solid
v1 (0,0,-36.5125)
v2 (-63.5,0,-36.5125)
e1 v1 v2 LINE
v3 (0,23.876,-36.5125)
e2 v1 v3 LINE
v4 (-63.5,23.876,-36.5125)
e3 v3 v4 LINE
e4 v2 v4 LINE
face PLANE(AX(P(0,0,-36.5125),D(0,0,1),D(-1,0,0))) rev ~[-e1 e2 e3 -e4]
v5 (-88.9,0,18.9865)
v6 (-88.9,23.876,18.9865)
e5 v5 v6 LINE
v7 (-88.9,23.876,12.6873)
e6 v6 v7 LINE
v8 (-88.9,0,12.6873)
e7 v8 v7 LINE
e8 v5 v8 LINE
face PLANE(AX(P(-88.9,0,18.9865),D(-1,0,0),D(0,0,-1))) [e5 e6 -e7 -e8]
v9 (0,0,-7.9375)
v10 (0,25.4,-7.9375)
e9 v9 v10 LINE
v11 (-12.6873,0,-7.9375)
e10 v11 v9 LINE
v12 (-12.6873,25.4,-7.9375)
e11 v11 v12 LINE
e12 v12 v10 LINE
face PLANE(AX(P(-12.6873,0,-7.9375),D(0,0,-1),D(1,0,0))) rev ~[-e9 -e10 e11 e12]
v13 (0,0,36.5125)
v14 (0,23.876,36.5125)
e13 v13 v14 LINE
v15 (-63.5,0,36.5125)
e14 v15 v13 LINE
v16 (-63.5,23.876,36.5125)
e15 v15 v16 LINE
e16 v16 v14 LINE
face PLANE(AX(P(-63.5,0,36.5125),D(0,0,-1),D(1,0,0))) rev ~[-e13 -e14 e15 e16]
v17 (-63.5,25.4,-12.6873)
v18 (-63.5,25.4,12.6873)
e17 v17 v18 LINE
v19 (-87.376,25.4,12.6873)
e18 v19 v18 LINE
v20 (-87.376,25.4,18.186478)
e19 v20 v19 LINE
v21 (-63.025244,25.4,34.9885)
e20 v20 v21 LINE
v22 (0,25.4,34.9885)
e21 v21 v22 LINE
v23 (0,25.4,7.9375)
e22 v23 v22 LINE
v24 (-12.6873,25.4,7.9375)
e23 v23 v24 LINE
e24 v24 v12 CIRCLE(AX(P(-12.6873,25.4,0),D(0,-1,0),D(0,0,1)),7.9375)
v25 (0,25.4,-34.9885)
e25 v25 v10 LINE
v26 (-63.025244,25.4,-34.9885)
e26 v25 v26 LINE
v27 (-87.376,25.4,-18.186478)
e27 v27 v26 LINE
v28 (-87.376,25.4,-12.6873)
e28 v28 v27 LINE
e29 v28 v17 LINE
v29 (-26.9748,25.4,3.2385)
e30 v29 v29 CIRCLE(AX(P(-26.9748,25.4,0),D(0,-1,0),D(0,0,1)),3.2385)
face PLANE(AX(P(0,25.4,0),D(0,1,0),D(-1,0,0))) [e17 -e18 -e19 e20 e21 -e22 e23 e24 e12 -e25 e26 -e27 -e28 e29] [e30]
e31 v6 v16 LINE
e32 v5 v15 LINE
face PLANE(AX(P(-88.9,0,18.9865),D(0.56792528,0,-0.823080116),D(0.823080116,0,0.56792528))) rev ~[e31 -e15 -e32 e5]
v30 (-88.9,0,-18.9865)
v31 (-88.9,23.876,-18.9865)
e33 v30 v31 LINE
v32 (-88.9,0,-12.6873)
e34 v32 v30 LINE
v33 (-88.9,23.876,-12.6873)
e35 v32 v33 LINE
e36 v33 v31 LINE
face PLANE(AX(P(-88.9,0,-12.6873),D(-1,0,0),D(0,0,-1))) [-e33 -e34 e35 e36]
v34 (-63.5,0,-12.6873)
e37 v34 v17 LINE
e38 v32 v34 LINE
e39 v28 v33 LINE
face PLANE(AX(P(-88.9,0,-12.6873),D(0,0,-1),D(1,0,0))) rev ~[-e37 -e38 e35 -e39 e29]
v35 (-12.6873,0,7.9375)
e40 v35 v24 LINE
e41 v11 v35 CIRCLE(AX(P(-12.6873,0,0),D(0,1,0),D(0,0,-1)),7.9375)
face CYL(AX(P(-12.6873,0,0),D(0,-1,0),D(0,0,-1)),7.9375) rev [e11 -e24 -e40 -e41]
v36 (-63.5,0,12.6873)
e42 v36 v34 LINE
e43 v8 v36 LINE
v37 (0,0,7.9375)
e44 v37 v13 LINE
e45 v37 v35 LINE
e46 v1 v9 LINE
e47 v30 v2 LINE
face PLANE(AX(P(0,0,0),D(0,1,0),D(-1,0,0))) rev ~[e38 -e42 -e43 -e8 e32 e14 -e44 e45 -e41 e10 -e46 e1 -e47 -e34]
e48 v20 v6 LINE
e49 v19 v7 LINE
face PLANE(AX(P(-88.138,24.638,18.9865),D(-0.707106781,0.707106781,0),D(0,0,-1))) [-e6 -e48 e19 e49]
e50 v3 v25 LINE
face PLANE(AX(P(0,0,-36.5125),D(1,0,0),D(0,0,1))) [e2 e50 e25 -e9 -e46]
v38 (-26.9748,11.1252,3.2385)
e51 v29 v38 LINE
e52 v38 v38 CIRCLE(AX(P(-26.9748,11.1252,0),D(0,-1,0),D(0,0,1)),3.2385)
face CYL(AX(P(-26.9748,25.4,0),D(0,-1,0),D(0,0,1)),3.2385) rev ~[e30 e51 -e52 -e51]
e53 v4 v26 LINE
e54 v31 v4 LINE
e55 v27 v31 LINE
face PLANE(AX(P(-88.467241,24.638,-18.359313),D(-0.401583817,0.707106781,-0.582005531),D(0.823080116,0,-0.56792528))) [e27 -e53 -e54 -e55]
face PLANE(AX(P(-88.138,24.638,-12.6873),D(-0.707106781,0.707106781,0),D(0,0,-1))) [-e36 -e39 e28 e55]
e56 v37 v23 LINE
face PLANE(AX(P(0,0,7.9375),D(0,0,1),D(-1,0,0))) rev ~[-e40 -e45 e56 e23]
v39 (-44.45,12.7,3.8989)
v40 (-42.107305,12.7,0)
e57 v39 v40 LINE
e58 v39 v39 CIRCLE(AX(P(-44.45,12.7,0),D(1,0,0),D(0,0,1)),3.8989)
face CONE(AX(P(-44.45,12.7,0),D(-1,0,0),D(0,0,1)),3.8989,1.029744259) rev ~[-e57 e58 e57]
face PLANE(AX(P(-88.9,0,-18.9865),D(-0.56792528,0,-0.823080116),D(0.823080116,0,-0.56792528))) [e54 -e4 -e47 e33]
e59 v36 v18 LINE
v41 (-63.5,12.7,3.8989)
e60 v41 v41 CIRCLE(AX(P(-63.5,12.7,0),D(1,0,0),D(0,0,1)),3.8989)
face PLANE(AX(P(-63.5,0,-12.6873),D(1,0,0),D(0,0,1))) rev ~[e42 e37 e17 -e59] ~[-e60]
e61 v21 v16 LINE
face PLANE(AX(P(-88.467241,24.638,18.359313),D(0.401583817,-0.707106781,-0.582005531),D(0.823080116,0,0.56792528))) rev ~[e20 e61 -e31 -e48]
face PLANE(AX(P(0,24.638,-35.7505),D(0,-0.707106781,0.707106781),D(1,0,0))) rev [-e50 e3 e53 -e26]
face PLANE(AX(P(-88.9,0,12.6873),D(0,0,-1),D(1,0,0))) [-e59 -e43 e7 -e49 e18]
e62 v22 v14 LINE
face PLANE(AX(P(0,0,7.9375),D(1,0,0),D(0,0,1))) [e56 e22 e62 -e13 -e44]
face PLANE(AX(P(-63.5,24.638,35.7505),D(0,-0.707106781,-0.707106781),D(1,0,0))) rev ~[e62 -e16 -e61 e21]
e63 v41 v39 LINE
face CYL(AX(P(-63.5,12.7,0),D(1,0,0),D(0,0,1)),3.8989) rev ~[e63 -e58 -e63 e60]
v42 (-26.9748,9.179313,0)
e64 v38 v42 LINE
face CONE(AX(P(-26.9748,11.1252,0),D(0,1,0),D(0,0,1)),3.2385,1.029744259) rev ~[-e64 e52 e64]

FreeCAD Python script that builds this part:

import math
import FreeCAD as App
import Part
import Sketcher

V = App.Vector
Q = App.Units.Quantity


def edges_at(feature, points):
    """Names of the edges that pass closest to the given points."""
    edges = feature.Shape.Edges
    near = lambda p: min(range(len(edges)), key=lambda i: edges[i].distToShape(Part.Vertex(*p))[0])
    return sorted({f"Edge{near(p) + 1}" for p in points})

doc = App.newDocument("Part")
body = doc.addObject("PartDesign::Body", "Body")

# Sketch on XZ plane
sketch1 = body.newObject("Sketcher::SketchObject", "Sketch")
sketch1.AttachmentSupport = (doc.getObject("XZ_Plane"), [""])
sketch1.MapMode = "FlatFace"
sketch1.addGeometry([
    Part.LineSegment(V(0, -7.9375, 0), V(0, -36.5125, 0)),  # 0
    Part.LineSegment(V(0, -36.5125, 0), V(-63.5, -36.5125, 0)),  # 1
    Part.LineSegment(V(-63.5, -36.5125, 0), V(-88.9, -18.9865, 0)),  # 2
    Part.LineSegment(V(-88.9, -18.9865, 0), V(-88.9, -12.6873, 0)),  # 3
    Part.LineSegment(V(-88.9, -12.6873, 0), V(-63.5, -12.6873, 0)),  # 4
    Part.LineSegment(V(-63.5, -12.6873, 0), V(-63.5, 12.6873, 0)),  # 5
    Part.LineSegment(V(-63.5, 12.6873, 0), V(-88.9, 12.6873, 0)),  # 6
    Part.LineSegment(V(-88.9, 12.6873, 0), V(-88.9, 18.9865, 0)),  # 7
    Part.LineSegment(V(-88.9, 18.9865, 0), V(-63.5, 36.5125, 0)),  # 8
    Part.LineSegment(V(-63.5, 36.5125, 0), V(0, 36.5125, 0)),  # 9
    Part.LineSegment(V(0, 36.5125, 0), V(0, 7.9375, 0)),  # 10
    Part.LineSegment(V(0, 7.9375, 0), V(-12.6873, 7.9375, 0)),  # 11
    Part.ArcOfCircle(Part.Circle(V(-12.6873, 0, 0), V(0, 0, 1), 7.9375), math.radians(90), math.radians(270)),  # 12
    Part.LineSegment(V(-12.6873, -7.9375, 0), V(0, -7.9375, 0)),  # 13
], False)
sketch1.addConstraint([
    Sketcher.Constraint("Coincident", 0, 2, 1, 1),
    Sketcher.Constraint("Coincident", 1, 2, 2, 1),
    Sketcher.Constraint("Coincident", 2, 2, 3, 1),
    Sketcher.Constraint("Coincident", 3, 2, 4, 1),
    Sketcher.Constraint("Coincident", 4, 2, 5, 1),
    Sketcher.Constraint("Coincident", 5, 2, 6, 1),
    Sketcher.Constraint("Coincident", 6, 2, 7, 1),
    Sketcher.Constraint("Coincident", 7, 2, 8, 1),
    Sketcher.Constraint("Coincident", 8, 2, 9, 1),
    Sketcher.Constraint("Coincident", 9, 2, 10, 1),
    Sketcher.Constraint("Coincident", 10, 2, 11, 1),
    Sketcher.Constraint("Tangent", 11, 2, 12, 1),
    Sketcher.Constraint("Tangent", 12, 2, 13, 1),
    Sketcher.Constraint("Coincident", 13, 2, 0, 1),
    Sketcher.Constraint("Vertical", 0),
    Sketcher.Constraint("Horizontal", 1),
    Sketcher.Constraint("Vertical", 3),
    Sketcher.Constraint("Horizontal", 4),
    Sketcher.Constraint("Vertical", 5),
    Sketcher.Constraint("Horizontal", 6),
    Sketcher.Constraint("Vertical", 7),
    Sketcher.Constraint("Horizontal", 9),
    Sketcher.Constraint("Vertical", 10),
    Sketcher.Constraint("Horizontal", 11),
    Sketcher.Constraint("Horizontal", 13),
    Sketcher.Constraint("Symmetric", 0, 2, 9, 2, -1, 1),
    Sketcher.Constraint("Symmetric", 3, 2, 6, 2, -1),
    Sketcher.Constraint("Symmetric", 10, 2, 13, 2, -1),
    Sketcher.Constraint("Vertical", 1, 2, 4, 2),
    Sketcher.Constraint("Vertical", 5, 2, 8, 2),
    Sketcher.Constraint("Equal", 3, 7),
    Sketcher.Constraint("DistanceX", 1, 2, 1, 1, Q("2.5 in")),
    Sketcher.Constraint("Radius", 12, Q("0.3125 in")),
    Sketcher.Constraint("DistanceX", 2, 2, -1, 1, Q("3.5 in")),
    Sketcher.Constraint("DistanceY", 1, 2, 2, 2, Q("0.69 in")),
    Sketcher.Constraint("DistanceX", 11, 2, 11, 1, Q("0.4995 in")),
    Sketcher.Constraint("DistanceY", 0, 2, -1, 1, Q("1.4375 in")),
    Sketcher.Constraint("DistanceY", 1, 2, 3, 2, Q("0.938 in")),
])
pad1 = body.newObject("PartDesign::Pad", "Pad")
pad1.Profile = sketch1
pad1.Length = Q("1 in")
pad1.Reversed = True
doc.recompute()

chamfer = body.newObject("PartDesign::Chamfer", "Chamfer")
chamfer.Base = (pad1, edges_at(pad1, [
    (-31.75, 25.4, 36.513),
    (-76.2, 25.4, 27.75),
    (-88.9, 25.4, 15.837),
    (-31.75, 25.4, -36.513),
    (-76.2, 25.4, -27.75),
    (-88.9, 25.4, -15.837),
]))
chamfer.Size = Q("0.06 in")

# Sketch on XZ plane
sketch2 = body.newObject("Sketcher::SketchObject", "Sketch001")
sketch2.AttachmentSupport = (doc.getObject("XZ_Plane"), [""])
sketch2.MapMode = "FlatFace"
sketch2.AttachmentOffset = App.Placement(V(0, 0, -1 * 25.4), App.Rotation())
sketch2.addGeometry(Part.Circle(V(-26.9748, 0, 0), V(0, 0, 1), 3.2385), False)
sketch2.addConstraint([
    Sketcher.Constraint("PointOnObject", 0, 3, -1),
    Sketcher.Constraint("Diameter", 0, Q("0.255 in")),
    Sketcher.Constraint("DistanceX", 0, 3, -1, 1, Q("1.062 in")),
])
doc.recompute()
hole = body.newObject("PartDesign::Hole", "Hole")
hole.Profile = sketch2
hole.ThreadType = "None"
hole.Diameter = Q("0.255 in")
hole.DepthType = "Dimension"
hole.Depth = Q("0.562 in")
hole.DrillPoint = "Angled"
hole.DrillPointAngle = 118
hole.Reversed = True

# Sketch on YZ plane
sketch3 = body.newObject("Sketcher::SketchObject", "Sketch002")
sketch3.AttachmentSupport = (doc.getObject("YZ_Plane"), [""])
sketch3.MapMode = "FlatFace"
sketch3.AttachmentOffset = App.Placement(V(0, 0, -2.5 * 25.4), App.Rotation())
sketch3.addGeometry(Part.Circle(V(12.7, 0, 0), V(0, 0, 1), 3.8989), False)
sketch3.addConstraint([
    Sketcher.Constraint("PointOnObject", 0, 3, -1),
    Sketcher.Constraint("Diameter", 0, Q("0.307 in")),
    Sketcher.Constraint("DistanceX", -1, 1, 0, 3, Q("0.5 in")),
])
doc.recompute()
hole2 = body.newObject("PartDesign::Hole", "Hole001")
hole2.Profile = sketch3
hole2.ThreadType = "None"
hole2.Diameter = Q("0.307 in")
hole2.DepthType = "Dimension"
hole2.Depth = Q("0.75 in")
hole2.DrillPoint = "Angled"
hole2.DrillPointAngle = 118
hole2.Reversed = True

doc.recompute()
